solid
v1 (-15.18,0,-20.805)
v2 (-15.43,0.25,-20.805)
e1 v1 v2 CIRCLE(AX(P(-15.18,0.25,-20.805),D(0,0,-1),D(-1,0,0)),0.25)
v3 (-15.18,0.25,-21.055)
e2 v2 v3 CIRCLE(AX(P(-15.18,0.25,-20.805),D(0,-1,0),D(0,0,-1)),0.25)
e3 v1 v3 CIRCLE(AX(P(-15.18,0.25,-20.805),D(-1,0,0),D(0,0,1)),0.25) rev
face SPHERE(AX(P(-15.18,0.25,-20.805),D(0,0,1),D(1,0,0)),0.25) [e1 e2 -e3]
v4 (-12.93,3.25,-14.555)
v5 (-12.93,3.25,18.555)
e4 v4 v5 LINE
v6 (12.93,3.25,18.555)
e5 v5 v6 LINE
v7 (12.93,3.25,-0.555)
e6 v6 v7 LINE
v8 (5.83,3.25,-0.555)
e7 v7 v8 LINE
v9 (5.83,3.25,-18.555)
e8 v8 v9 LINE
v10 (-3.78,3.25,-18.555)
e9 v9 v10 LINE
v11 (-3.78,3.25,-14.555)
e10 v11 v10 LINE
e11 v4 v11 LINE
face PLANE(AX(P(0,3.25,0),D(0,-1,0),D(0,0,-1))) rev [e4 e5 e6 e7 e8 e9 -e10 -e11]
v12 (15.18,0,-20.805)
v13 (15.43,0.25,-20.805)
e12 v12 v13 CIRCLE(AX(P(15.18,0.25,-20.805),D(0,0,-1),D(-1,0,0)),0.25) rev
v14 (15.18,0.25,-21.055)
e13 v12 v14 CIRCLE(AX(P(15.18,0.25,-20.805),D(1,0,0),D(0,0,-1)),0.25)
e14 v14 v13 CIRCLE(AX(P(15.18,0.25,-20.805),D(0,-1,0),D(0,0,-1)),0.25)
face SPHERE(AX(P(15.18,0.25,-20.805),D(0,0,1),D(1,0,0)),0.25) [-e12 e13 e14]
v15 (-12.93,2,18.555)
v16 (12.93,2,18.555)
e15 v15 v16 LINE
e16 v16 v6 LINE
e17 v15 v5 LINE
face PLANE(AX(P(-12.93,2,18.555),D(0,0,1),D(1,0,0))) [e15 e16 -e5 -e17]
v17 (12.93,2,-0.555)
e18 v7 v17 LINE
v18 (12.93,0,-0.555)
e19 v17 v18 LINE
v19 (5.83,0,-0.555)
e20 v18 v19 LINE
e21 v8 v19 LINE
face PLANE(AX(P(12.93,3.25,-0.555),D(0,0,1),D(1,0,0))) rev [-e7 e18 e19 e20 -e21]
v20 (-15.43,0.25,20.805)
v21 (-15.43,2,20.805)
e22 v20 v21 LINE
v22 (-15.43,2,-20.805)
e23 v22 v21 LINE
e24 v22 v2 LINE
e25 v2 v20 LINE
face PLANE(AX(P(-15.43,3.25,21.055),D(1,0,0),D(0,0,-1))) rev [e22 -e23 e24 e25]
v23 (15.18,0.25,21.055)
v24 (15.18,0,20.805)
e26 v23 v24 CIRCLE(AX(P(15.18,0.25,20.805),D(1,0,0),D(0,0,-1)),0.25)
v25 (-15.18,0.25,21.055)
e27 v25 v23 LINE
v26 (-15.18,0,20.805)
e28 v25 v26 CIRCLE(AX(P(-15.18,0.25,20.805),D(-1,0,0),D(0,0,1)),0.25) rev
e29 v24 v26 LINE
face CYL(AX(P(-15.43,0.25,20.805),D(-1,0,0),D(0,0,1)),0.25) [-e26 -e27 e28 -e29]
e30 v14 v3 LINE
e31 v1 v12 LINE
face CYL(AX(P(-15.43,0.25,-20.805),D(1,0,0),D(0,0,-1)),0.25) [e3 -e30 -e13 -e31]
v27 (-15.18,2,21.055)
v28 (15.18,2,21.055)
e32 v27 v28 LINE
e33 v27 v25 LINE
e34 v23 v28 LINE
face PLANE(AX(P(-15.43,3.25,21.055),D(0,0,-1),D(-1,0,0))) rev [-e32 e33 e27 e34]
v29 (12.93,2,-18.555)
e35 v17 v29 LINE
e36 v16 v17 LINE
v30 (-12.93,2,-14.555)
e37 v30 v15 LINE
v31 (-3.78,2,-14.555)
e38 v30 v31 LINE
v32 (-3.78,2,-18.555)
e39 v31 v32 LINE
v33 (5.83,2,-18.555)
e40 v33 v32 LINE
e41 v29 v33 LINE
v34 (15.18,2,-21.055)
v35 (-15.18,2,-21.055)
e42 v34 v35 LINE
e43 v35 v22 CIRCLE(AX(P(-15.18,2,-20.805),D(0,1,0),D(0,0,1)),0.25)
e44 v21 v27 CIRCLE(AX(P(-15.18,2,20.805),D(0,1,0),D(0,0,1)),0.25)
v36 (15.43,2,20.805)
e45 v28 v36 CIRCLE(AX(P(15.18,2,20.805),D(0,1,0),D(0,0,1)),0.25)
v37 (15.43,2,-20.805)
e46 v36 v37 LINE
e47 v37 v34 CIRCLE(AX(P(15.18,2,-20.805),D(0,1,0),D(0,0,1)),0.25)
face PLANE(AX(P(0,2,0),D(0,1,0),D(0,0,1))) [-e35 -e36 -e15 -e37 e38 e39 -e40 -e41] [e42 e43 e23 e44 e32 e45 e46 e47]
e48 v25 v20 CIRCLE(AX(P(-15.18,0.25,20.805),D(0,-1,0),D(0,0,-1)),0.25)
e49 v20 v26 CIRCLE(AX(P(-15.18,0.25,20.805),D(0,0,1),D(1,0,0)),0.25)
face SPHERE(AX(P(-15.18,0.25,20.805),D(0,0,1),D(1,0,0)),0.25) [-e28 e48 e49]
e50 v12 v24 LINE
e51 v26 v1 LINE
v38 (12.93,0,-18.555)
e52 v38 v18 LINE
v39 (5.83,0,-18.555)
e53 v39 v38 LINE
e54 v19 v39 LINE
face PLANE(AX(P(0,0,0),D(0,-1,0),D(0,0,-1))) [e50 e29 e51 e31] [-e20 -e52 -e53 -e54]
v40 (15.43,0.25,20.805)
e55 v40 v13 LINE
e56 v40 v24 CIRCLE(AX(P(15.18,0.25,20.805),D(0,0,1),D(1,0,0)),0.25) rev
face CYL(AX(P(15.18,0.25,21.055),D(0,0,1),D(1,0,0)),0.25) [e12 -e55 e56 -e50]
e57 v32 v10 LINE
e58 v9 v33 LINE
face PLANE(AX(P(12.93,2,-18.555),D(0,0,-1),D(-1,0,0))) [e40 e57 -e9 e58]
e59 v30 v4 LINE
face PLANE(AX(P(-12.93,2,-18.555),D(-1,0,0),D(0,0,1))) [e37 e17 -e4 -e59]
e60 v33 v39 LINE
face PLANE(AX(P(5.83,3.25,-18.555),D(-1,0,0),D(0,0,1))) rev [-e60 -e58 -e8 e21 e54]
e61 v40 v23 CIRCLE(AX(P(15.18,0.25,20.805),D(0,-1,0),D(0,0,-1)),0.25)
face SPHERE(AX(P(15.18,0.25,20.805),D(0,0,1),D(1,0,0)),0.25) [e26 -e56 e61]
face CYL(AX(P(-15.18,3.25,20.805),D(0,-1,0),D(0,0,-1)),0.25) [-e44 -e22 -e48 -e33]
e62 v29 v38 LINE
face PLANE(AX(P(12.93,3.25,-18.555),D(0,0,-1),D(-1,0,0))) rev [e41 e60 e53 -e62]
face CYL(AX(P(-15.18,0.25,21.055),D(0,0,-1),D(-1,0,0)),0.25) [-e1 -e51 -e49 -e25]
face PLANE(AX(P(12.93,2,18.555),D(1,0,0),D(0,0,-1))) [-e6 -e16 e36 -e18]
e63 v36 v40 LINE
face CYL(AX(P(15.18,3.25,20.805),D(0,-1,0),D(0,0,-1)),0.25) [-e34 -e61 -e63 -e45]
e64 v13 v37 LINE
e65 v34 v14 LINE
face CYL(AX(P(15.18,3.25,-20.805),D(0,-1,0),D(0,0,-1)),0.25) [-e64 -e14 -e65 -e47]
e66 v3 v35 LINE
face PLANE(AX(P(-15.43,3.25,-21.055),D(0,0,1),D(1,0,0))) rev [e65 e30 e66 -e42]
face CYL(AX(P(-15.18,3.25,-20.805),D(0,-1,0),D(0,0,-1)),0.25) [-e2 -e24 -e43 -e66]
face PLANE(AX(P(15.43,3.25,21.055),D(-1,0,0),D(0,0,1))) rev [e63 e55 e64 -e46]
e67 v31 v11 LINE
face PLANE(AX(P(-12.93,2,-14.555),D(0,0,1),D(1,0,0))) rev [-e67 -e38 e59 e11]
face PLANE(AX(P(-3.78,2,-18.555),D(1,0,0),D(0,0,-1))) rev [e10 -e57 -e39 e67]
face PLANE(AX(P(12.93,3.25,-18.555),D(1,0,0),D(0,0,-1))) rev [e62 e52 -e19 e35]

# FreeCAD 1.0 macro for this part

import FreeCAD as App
import Part
import Sketcher

V = App.Vector
Q = App.Units.Quantity


def edges_at(feature, points):
    """Names of the edges that pass closest to the given points."""
    edges = feature.Shape.Edges
    near = lambda p: min(range(len(edges)), key=lambda i: edges[i].distToShape(Part.Vertex(*p))[0])
    return sorted({f"Edge{near(p) + 1}" for p in points})


def add_polygon(sketch, points):
    """Adds a closed chain of lines whose ends are joined by coincident constraints."""
    first, n = sketch.GeometryCount, len(points)
    for a, b in zip(points, points[1:] + points[:1]):
        sketch.addGeometry(Part.LineSegment(App.Vector(*a, 0), App.Vector(*b, 0)), False)
    for i in range(n):
        sketch.addConstraint(Sketcher.Constraint("Coincident", first + i, 2, first + (i + 1) % n, 1))

doc = App.newDocument("Part")
params = doc.addObject("Spreadsheet::Sheet", "Params")
for row, (alias, value) in enumerate([
    ("sketch1_width", "30.86 mm"),
    ("sketch1_height", "42.11 mm"),
    ("pad1_length", "3.25 mm"),
    ("sketch2_width", "25.86 mm"),
    ("sketch2_height", "37.11 mm"),
    ("pocket1_length", "1.25 mm"),
    ("fillet_radius", "0.25 mm"),
    ("sketch3_height", "18 mm"),
    ("sketch3_width", "7.1 mm"),
    ("sketch4_height", "4 mm"),
    ("sketch4_width", "9.15 mm"),
    ("pocket3_length", "1.25 mm"),
], start=1):
    params.set(f"A{row}", alias)
    params.set(f"B{row}", "=" + value)
    params.setAlias(f"B{row}", alias)

body = doc.addObject("PartDesign::Body", "Body")

# Sketch on XZ plane
sketch1 = body.newObject("Sketcher::SketchObject", "Sketch")
sketch1.AttachmentSupport = (doc.getObject("XZ_Plane"), [""])
sketch1.MapMode = "FlatFace"
add_polygon(sketch1, [(-15.43, -21.055), (-15.43, 21.055), (15.43, 21.055), (15.43, -21.055)])  # lines 0-3
sketch1.addConstraint([
    Sketcher.Constraint("Vertical", 0),
    Sketcher.Constraint("Horizontal", 1),
    Sketcher.Constraint("Vertical", 2),
    Sketcher.Constraint("Horizontal", 3),
    Sketcher.Constraint("Symmetric", 0, 2, 2, 2, -1, 1),
    Sketcher.Constraint("DistanceX", 1, 1, 1, 2, Q("30.86 mm")),
    Sketcher.Constraint("DistanceY", 0, 1, 0, 2, Q("42.11 mm")),
])
sketch1.setExpression("Constraints[9]", "Params.sketch1_width")
sketch1.setExpression("Constraints[10]", "Params.sketch1_height")
pad1 = body.newObject("PartDesign::Pad", "Pad")
pad1.Profile = sketch1
pad1.setExpression("Length", "Params.pad1_length")
pad1.Reversed = True

# Sketch on XZ plane
sketch2 = body.newObject("Sketcher::SketchObject", "Sketch001")
sketch2.AttachmentSupport = (doc.getObject("XZ_Plane"), [""])
sketch2.MapMode = "FlatFace"
sketch2.AttachmentOffset = App.Placement(V(0, 0, -3.25), App.Rotation())
add_polygon(sketch2, [(-21.661, -27.286), (-21.661, 27.286), (21.661, 27.286), (21.661, -27.286)])  # lines 0-3
add_polygon(sketch2, [(12.93, 18.555), (-12.93, 18.555), (-12.93, -18.555), (12.93, -18.555)])  # lines 4-7
sketch2.addConstraint([
    Sketcher.Constraint("Vertical", 0),
    Sketcher.Constraint("Horizontal", 1),
    Sketcher.Constraint("Vertical", 2),
    Sketcher.Constraint("Horizontal", 3),
    Sketcher.Constraint("Horizontal", 4),
    Sketcher.Constraint("Vertical", 5),
    Sketcher.Constraint("Horizontal", 6),
    Sketcher.Constraint("Vertical", 7),
    Sketcher.Constraint("Symmetric", 0, 2, 2, 2, -1, 1),
    Sketcher.Constraint("Symmetric", 4, 2, 6, 2, -1, 1),
    Sketcher.Constraint("DistanceX", 4, 2, 4, 1, Q("25.86 mm")),
    Sketcher.Constraint("DistanceY", 5, 2, 5, 1, Q("37.11 mm")),
    Sketcher.Constraint("DistanceX", 1, 1, 1, 2, Q("43.322 mm")),
    Sketcher.Constraint("DistanceY", 0, 1, 0, 2, Q("54.572 mm")),
])
sketch2.setExpression("Constraints[18]", "Params.sketch2_width")
sketch2.setExpression("Constraints[19]", "Params.sketch2_height")
pocket1 = body.newObject("PartDesign::Pocket", "Pocket")
pocket1.Profile = sketch2
pocket1.setExpression("Length", "Params.pocket1_length")
pocket1.Reversed = True
doc.recompute()

fillet = body.newObject("PartDesign::Fillet", "Fillet")
fillet.Base = (pocket1, edges_at(pocket1, [
    (15.43, 1, 21.055),
    (-15.43, 1, 21.055),
    (-15.43, 1, -21.055),
    (15.43, 1, -21.055),
    (0, 0, 21.055),
    (-15.43, 0, 0),
    (0, 0, -21.055),
    (15.43, 0, 0),
]))
fillet.setExpression("Radius", "Params.fillet_radius")

# Sketch on XZ plane
sketch3 = body.newObject("Sketcher::SketchObject", "Sketch002")
sketch3.AttachmentSupport = (doc.getObject("XZ_Plane"), [""])
sketch3.MapMode = "FlatFace"
add_polygon(sketch3, [(12.93, -18.555), (12.93, -0.555), (5.83, -0.555), (5.83, -18.555)])  # lines 0-3
sketch3.addConstraint([
    Sketcher.Constraint("Vertical", 0),
    Sketcher.Constraint("Horizontal", 1),
    Sketcher.Constraint("Vertical", 2),
    Sketcher.Constraint("Horizontal", 3),
    Sketcher.Constraint("DistanceY", 0, 1, 0, 2, Q("18 mm")),
    Sketcher.Constraint("DistanceX", 1, 2, 1, 1, Q("7.1 mm")),
    Sketcher.Constraint("DistanceX", -1, 1, 0, 2, Q("12.93 mm")),
    Sketcher.Constraint("DistanceY", 0, 2, -1, 1, Q("0.555 mm")),
])
sketch3.setExpression("Constraints[8]", "Params.sketch3_height")
sketch3.setExpression("Constraints[9]", "Params.sketch3_width")
pocket2 = body.newObject("PartDesign::Pocket", "Pocket001")
pocket2.Profile = sketch3
pocket2.Type = "ThroughAll"

# Sketch on XZ plane
sketch4 = body.newObject("Sketcher::SketchObject", "Sketch003")
sketch4.AttachmentSupport = (doc.getObject("XZ_Plane"), [""])
sketch4.MapMode = "FlatFace"
sketch4.AttachmentOffset = App.Placement(V(0, 0, -3.25), App.Rotation())
add_polygon(sketch4, [(-12.93, -18.555), (-12.93, -14.555), (-3.78, -14.555), (-3.78, -18.555)])  # lines 0-3
sketch4.addConstraint([
    Sketcher.Constraint("Vertical", 0),
    Sketcher.Constraint("Horizontal", 1),
    Sketcher.Constraint("Vertical", 2),
    Sketcher.Constraint("Horizontal", 3),
    Sketcher.Constraint("DistanceY", 0, 1, 0, 2, Q("4 mm")),
    Sketcher.Constraint("DistanceX", 1, 1, 1, 2, Q("9.15 mm")),
    Sketcher.Constraint("DistanceX", 0, 2, -1, 1, Q("12.93 mm")),
    Sketcher.Constraint("DistanceY", 0, 2, -1, 1, Q("14.555 mm")),
])
sketch4.setExpression("Constraints[8]", "Params.sketch4_height")
sketch4.setExpression("Constraints[9]", "Params.sketch4_width")
pocket3 = body.newObject("PartDesign::Pocket", "Pocket002")
pocket3.Profile = sketch4
pocket3.setExpression("Length", "Params.pocket3_length")
pocket3.Reversed = True

doc.recompute()
